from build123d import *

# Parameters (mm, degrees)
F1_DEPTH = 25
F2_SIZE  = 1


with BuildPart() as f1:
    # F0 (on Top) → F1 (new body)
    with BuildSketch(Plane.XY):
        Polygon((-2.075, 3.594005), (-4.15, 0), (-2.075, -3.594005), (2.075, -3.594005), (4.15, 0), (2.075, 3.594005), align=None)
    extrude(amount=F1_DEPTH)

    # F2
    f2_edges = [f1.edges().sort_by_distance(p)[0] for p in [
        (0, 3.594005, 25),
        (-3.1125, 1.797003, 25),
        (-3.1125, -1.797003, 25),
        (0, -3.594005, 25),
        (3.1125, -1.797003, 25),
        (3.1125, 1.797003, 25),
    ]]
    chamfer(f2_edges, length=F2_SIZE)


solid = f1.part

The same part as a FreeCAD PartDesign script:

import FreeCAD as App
import Part
import Sketcher
Q = App.Units.Quantity


def edges_at(feature, points):
    """Names of the edges that pass closest to the given points."""
    edges = feature.Shape.Edges
    near = lambda p: min(range(len(edges)), key=lambda i: edges[i].distToShape(Part.Vertex(*p))[0])
    return sorted({f"Edge{near(p) + 1}" for p in points})


def add_polygon(sketch, points):
    """Adds a closed chain of lines whose ends are joined by coincident constraints."""
    first, n = sketch.GeometryCount, len(points)
    for a, b in zip(points, points[1:] + points[:1]):
        sketch.addGeometry(Part.LineSegment(App.Vector(*a, 0), App.Vector(*b, 0)), False)
    for i in range(n):
        sketch.addConstraint(Sketcher.Constraint("Coincident", first + i, 2, first + (i + 1) % n, 1))

doc = App.newDocument("Part")
params = doc.addObject("Spreadsheet::Sheet", "Params")
for row, (alias, value) in enumerate([
    ("sketch1_width", "4.15 mm"),
    ("pad1_length", "25 mm"),
    ("chamfer_size", "1 mm"),
], start=1):
    params.set(f"A{row}", alias)
    params.set(f"B{row}", "=" + value)
    params.setAlias(f"B{row}", alias)

body = doc.addObject("PartDesign::Body", "Body")

# Sketch on XY plane
sketch1 = body.newObject("Sketcher::SketchObject", "Sketch")
sketch1.AttachmentSupport = (doc.getObject("XY_Plane"), [""])
sketch1.MapMode = "FlatFace"
add_polygon(sketch1, [(-2.075, 3.594005), (-4.15, 0), (-2.075, -3.594005), (2.075, -3.594005), (4.15, 0), (2.075, 3.594005)])  # lines 0-5
sketch1.addConstraint([
    Sketcher.Constraint("Horizontal", 2),
    Sketcher.Constraint("Horizontal", 5),
    Sketcher.Constraint("Symmetric", 0, 2, 3, 2, -1, 1),
    Sketcher.Constraint("Symmetric", 1, 2, 4, 2, -1, 1),
    Sketcher.Constraint("PointOnObject", 0, 2, -1),
    Sketcher.Constraint("Parallel", 0, 3),
    Sketcher.Constraint("Vertical", 2, 2, 4, 2),
    Sketcher.Constraint("Angle", 0, Q("-120.000003 deg")),
    Sketcher.Constraint("DistanceX", 2, 1, 2, 2, 4.15),
    Sketcher.Constraint("DistanceX", 0, 2, 3, 2, 8.3),
])
sketch1.setExpression("Constraints[14]", "Params.sketch1_width")
pad1 = body.newObject("PartDesign::Pad", "Pad")
pad1.Profile = sketch1
pad1.setExpression("Length", "Params.pad1_length")
doc.recompute()

chamfer = body.newObject("PartDesign::Chamfer", "Chamfer")
chamfer.Base = (pad1, edges_at(pad1, [
    (0, 3.594, 25),
    (-3.112, 1.797, 25),
    (-3.112, -1.797, 25),
    (0, -3.594, 25),
    (3.112, -1.797, 25),
    (3.112, 1.797, 25),
]))
chamfer.setExpression("Size", "Params.chamfer_size")

doc.recompute()
